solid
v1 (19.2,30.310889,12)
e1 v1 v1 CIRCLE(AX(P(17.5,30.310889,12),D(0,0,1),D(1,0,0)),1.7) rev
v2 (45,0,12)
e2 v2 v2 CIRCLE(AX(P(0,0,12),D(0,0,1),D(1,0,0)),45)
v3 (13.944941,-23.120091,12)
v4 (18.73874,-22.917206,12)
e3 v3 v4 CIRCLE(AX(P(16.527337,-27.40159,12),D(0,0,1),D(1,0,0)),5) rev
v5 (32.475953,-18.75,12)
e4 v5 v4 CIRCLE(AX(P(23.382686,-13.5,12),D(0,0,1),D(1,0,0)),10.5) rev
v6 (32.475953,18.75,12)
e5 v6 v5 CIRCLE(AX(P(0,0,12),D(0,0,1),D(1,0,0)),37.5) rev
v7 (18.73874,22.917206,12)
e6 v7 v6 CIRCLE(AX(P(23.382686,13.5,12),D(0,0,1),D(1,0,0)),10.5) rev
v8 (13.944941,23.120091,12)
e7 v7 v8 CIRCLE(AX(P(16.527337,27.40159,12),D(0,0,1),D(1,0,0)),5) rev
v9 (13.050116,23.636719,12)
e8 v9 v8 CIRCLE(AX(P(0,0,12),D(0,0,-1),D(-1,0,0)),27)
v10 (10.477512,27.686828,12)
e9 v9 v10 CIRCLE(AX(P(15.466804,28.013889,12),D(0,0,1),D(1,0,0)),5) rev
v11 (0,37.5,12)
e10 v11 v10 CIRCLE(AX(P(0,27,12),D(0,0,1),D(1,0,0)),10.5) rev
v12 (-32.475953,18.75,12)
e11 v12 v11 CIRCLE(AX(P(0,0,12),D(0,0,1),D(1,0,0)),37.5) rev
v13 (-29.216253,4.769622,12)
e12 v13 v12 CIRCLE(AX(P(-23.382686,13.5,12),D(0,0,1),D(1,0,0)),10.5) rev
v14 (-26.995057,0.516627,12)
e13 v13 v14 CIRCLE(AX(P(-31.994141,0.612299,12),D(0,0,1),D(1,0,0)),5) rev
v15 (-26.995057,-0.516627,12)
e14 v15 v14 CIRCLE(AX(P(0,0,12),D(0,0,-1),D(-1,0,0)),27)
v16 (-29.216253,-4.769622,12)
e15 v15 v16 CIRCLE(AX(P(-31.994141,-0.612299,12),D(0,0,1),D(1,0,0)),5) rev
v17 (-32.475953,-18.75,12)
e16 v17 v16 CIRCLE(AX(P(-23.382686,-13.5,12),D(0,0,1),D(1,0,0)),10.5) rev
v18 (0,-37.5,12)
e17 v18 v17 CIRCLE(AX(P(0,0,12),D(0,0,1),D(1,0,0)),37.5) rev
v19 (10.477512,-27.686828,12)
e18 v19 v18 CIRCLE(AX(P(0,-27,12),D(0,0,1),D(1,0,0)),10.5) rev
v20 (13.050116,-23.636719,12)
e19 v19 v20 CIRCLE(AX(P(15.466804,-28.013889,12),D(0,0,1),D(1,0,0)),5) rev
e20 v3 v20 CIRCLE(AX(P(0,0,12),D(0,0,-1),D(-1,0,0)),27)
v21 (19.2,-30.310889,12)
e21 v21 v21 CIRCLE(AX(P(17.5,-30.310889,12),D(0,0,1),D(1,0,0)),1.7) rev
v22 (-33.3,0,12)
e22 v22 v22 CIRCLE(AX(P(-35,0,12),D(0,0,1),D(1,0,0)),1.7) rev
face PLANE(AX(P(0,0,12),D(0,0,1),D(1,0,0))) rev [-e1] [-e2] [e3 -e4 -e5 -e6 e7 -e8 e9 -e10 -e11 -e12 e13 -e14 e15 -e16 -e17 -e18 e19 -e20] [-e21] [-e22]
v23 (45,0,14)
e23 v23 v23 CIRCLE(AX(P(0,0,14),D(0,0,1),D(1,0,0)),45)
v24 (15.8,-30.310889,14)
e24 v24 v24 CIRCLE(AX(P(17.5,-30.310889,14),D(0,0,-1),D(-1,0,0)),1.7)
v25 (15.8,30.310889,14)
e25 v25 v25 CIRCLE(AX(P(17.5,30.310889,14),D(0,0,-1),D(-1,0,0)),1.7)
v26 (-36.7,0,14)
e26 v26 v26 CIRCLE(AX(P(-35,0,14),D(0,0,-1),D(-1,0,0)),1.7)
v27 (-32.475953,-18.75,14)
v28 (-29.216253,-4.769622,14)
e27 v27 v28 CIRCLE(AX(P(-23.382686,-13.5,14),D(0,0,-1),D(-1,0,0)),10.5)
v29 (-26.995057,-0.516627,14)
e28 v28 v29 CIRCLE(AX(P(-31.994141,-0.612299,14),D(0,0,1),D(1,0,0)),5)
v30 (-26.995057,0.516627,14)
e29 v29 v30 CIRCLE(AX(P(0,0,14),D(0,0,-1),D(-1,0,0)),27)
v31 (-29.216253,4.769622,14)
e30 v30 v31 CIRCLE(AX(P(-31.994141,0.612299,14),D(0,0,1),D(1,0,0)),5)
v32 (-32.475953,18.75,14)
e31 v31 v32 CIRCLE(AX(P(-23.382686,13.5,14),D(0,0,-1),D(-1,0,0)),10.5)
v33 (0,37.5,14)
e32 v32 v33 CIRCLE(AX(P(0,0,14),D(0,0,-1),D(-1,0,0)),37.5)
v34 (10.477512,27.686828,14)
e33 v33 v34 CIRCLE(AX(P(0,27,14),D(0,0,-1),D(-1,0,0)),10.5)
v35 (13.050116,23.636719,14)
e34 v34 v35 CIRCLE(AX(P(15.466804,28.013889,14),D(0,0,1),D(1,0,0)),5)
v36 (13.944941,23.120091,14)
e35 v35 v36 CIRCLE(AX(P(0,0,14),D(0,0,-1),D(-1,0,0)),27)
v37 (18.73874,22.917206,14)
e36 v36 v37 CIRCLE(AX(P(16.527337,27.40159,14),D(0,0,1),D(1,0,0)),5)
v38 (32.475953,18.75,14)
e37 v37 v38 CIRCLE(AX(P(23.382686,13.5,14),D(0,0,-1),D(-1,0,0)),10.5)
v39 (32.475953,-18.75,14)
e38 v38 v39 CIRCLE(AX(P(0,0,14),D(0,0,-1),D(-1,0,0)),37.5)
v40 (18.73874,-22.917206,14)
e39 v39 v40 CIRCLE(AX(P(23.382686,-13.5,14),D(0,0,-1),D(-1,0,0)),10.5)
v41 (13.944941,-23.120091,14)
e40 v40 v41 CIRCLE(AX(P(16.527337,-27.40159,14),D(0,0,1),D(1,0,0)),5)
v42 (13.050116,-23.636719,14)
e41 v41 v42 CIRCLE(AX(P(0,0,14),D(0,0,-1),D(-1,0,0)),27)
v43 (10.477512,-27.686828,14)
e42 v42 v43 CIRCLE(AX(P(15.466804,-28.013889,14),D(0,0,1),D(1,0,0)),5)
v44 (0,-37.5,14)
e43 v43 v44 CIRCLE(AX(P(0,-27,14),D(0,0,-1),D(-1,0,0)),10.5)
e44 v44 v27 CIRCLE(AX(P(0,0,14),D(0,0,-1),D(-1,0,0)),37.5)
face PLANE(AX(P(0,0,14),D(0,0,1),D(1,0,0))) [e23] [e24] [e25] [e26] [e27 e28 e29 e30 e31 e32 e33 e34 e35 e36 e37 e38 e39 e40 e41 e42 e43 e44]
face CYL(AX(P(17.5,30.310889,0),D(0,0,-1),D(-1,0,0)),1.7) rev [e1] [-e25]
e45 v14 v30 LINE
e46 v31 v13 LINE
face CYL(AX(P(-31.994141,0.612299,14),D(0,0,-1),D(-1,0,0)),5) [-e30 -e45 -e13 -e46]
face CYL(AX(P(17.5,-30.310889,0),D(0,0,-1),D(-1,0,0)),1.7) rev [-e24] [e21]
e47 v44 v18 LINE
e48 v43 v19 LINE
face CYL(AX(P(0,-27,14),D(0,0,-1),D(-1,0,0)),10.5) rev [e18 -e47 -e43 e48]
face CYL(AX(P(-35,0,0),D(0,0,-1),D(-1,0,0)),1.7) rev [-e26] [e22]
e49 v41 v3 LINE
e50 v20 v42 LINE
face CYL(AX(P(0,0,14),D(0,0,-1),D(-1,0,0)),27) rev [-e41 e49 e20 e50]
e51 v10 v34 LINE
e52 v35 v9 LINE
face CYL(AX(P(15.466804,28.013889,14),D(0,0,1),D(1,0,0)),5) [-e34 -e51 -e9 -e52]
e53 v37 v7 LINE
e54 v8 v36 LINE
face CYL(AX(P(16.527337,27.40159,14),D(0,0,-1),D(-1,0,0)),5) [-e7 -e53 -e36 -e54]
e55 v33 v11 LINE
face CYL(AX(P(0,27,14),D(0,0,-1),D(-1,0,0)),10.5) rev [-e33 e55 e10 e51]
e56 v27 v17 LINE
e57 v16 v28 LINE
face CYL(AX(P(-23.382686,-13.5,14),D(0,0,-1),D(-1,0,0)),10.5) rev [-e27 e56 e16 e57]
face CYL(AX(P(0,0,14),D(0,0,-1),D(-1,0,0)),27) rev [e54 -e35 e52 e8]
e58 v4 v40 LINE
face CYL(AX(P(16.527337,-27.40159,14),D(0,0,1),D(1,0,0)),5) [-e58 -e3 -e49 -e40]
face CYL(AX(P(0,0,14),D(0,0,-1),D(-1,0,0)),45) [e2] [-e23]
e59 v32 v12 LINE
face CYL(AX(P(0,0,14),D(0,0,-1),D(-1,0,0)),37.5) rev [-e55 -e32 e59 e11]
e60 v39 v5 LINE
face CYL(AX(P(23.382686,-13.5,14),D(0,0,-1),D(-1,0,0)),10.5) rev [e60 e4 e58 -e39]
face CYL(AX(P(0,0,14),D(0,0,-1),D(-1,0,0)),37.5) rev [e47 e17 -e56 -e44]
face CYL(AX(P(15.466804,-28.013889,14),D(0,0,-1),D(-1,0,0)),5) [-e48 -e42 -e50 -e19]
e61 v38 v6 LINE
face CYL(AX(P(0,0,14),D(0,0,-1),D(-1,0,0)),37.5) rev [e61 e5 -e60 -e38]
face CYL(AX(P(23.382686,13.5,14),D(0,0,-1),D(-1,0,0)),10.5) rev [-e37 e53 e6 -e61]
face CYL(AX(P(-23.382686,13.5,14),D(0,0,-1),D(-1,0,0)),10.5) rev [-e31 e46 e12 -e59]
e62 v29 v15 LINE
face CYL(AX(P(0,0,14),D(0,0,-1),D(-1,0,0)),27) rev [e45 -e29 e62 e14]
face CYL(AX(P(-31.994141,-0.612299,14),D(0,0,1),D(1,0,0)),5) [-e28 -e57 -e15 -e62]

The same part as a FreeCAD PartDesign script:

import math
import FreeCAD as App
import Part
import Sketcher
Q = App.Units.Quantity


def edges_at(feature, points):
    """Names of the edges that pass closest to the given points."""
    edges = feature.Shape.Edges
    near = lambda p: min(range(len(edges)), key=lambda i: edges[i].distToShape(Part.Vertex(*p))[0])
    return sorted({f"Edge{near(p) + 1}" for p in points})

doc = App.newDocument("Part")
body = doc.addObject("PartDesign::Body", "Body")

sketch1 = doc.addObject("Sketcher::SketchObject", "Sketch")
body.addObject(sketch1)
sketch1.AttachmentSupport = (doc.XY_Plane, [""])
sketch1.MapMode = "FlatFace"
sketch1.addGeometry(Part.Circle(App.Vector(0, 0, 0), App.Vector(0, 0, 1), 40), False)
sketch1.addConstraint(Sketcher.Constraint("Coincident", 0, 3, -1, 1))
sketch1.addConstraint(Sketcher.Constraint("Diameter", 0, Q("80 mm")))
pad1 = doc.addObject("PartDesign::Pad", "Pad")
body.addObject(pad1)
pad1.Profile = sketch1
pad1.Length = 12

sketch2 = doc.addObject("Sketcher::SketchObject", "Sketch001")
body.addObject(sketch2)
sketch2.AttachmentSupport = (doc.XY_Plane, [""])
sketch2.MapMode = "FlatFace"
sketch2.AttachmentOffset = App.Placement(App.Vector(0, 0, 12), App.Rotation())
sketch2.addGeometry(Part.Circle(App.Vector(0, 0, 0), App.Vector(0, 0, 1), 45), False)
sketch2.addConstraint(Sketcher.Constraint("Coincident", 0, 3, -1, 1))
sketch2.addConstraint(Sketcher.Constraint("Diameter", 0, Q("90 mm")))
pad2 = doc.addObject("PartDesign::Pad", "Pad001")
body.addObject(pad2)
pad2.Profile = sketch2
pad2.Length = 2

sketch3 = doc.addObject("Sketcher::SketchObject", "Sketch002")
body.addObject(sketch3)
sketch3.AttachmentSupport = (doc.XY_Plane, [""])
sketch3.MapMode = "FlatFace"
sketch3.AttachmentOffset = App.Placement(App.Vector(0, 0, 14), App.Rotation())
sketch3.addGeometry(Part.Circle(App.Vector(0, 0, 0), App.Vector(0, 0, 1), 7.5), False)
sketch3.addConstraint(Sketcher.Constraint("Coincident", 0, 3, -1, 1))
sketch3.addConstraint(Sketcher.Constraint("Diameter", 0, Q("15 mm")))
pocket1 = doc.addObject("PartDesign::Pocket", "Pocket")
body.addObject(pocket1)
pocket1.Profile = sketch3
pocket1.Type = "ThroughAll"

sketch4 = doc.addObject("Sketcher::SketchObject", "Sketch003")
body.addObject(sketch4)
sketch4.AttachmentSupport = (doc.XY_Plane, [""])
sketch4.MapMode = "FlatFace"
sketch4.AttachmentOffset = App.Placement(App.Vector(0, 0, 14), App.Rotation())
sketch4.addGeometry(Part.Circle(App.Vector(6.25, 10.825318, 0), App.Vector(0, 0, 1), 1.7), False)
sketch4.addGeometry(Part.Circle(App.Vector(-12.5, 0, 0), App.Vector(0, 0, 1), 1.7), False)
sketch4.addGeometry(Part.Circle(App.Vector(6.25, -10.825318, 0), App.Vector(0, 0, 1), 1.7), False)
sketch4.addConstraint(Sketcher.Constraint("Equal", 0, 1))
sketch4.addConstraint(Sketcher.Constraint("Equal", 1, 2))
sketch4.addConstraint(Sketcher.Constraint("Symmetric", 0, 3, 2, 3, -1))
sketch4.addConstraint(Sketcher.Constraint("PointOnObject", 1, 3, -1))
sketch4.addConstraint(Sketcher.Constraint("Diameter", 0, Q("3.4 mm")))
sketch4.addConstraint(Sketcher.Constraint("DistanceX", 1, 3, -1, 1, Q("12.5 mm")))
sketch4.addConstraint(Sketcher.Constraint("DistanceX", -1, 1, 0, 3, Q("6.25 mm")))
sketch4.addConstraint(Sketcher.Constraint("DistanceY", -1, 1, 0, 3, Q("10.825318 mm")))
doc.recompute()
hole = doc.addObject("PartDesign::Hole", "Hole")
body.addObject(hole)
hole.Profile = sketch4
hole.ThreadType = "None"
hole.Diameter = 3.4
hole.DepthType = "ThroughAll"

sketch5 = doc.addObject("Sketcher::SketchObject", "Sketch004")
body.addObject(sketch5)
sketch5.AttachmentSupport = (doc.XY_Plane, [""])
sketch5.MapMode = "FlatFace"
sketch5.addGeometry(Part.ArcOfCircle(Part.Circle(App.Vector(-23.382686, -13.5, 0), App.Vector(0, 0, 1), 10.5), math.radians(30), math.radians(210)), False)
sketch5.addGeometry(Part.ArcOfCircle(Part.Circle(App.Vector(0, 0, 0), App.Vector(0, 0, 1), 16.5), math.radians(-150), math.radians(-90)), False)
sketch5.addGeometry(Part.ArcOfCircle(Part.Circle(App.Vector(0, -27, 0), App.Vector(0, 0, 1), 10.5), math.radians(-90), math.radians(90)), False)
sketch5.addGeometry(Part.ArcOfCircle(Part.Circle(App.Vector(0, 0, 0), App.Vector(0, 0, 1), 37.5), math.radians(-150), math.radians(-90)), False)
sketch5.addGeometry(Part.ArcOfCircle(Part.Circle(App.Vector(0, 0, 0), App.Vector(0, 0, 1), 37.5), math.radians(90), math.radians(150)), False)
sketch5.addGeometry(Part.ArcOfCircle(Part.Circle(App.Vector(0, 27, 0), App.Vector(0, 0, 1), 10.5), math.radians(-90), math.radians(90)), False)
sketch5.addGeometry(Part.ArcOfCircle(Part.Circle(App.Vector(0, 0, 0), App.Vector(0, 0, 1), 16.5), math.radians(90), math.radians(150)), False)
sketch5.addGeometry(Part.ArcOfCircle(Part.Circle(App.Vector(-23.382686, 13.5, 0), App.Vector(0, 0, 1), 10.5), math.radians(150), math.radians(330)), False)
sketch5.addGeometry(Part.ArcOfCircle(Part.Circle(App.Vector(23.382686, -13.5, 0), App.Vector(0, 0, 1), 10.5), math.radians(150), math.radians(330)), False)
sketch5.addGeometry(Part.ArcOfCircle(Part.Circle(App.Vector(0, 0, 0), App.Vector(0, 0, 1), 16.5), math.radians(-30), math.radians(30)), False)
sketch5.addGeometry(Part.ArcOfCircle(Part.Circle(App.Vector(23.382686, 13.5, 0), App.Vector(0, 0, 1), 10.5), math.radians(30), math.radians(210)), False)
sketch5.addGeometry(Part.ArcOfCircle(Part.Circle(App.Vector(0, 0, 0), App.Vector(0, 0, 1), 37.5), math.radians(-30), math.radians(30)), False)
sketch5.addConstraint(Sketcher.Constraint("Tangent", 0, 1, 1, 1))
sketch5.addConstraint(Sketcher.Constraint("Tangent", 1, 2, 2, 2))
sketch5.addConstraint(Sketcher.Constraint("Tangent", 2, 1, 3, 2))
sketch5.addConstraint(Sketcher.Constraint("Tangent", 3, 1, 0, 2))
sketch5.addConstraint(Sketcher.Constraint("Tangent", 4, 1, 5, 2))
sketch5.addConstraint(Sketcher.Constraint("Tangent", 5, 1, 6, 1))
sketch5.addConstraint(Sketcher.Constraint("Tangent", 6, 2, 7, 2))
sketch5.addConstraint(Sketcher.Constraint("Tangent", 7, 1, 4, 2))
sketch5.addConstraint(Sketcher.Constraint("Tangent", 8, 1, 9, 1))
sketch5.addConstraint(Sketcher.Constraint("Tangent", 9, 2, 10, 2))
sketch5.addConstraint(Sketcher.Constraint("Tangent", 10, 1, 11, 2))
sketch5.addConstraint(Sketcher.Constraint("Tangent", 11, 1, 8, 2))
sketch5.addConstraint(Sketcher.Constraint("Coincident", 1, 3, -1, 1))
sketch5.addConstraint(Sketcher.Constraint("Coincident", 3, 3, -1, 1))
sketch5.addConstraint(Sketcher.Constraint("Coincident", 4, 3, -1, 1))
sketch5.addConstraint(Sketcher.Constraint("Coincident", 6, 3, -1, 1))
sketch5.addConstraint(Sketcher.Constraint("Coincident", 9, 3, -1, 1))
sketch5.addConstraint(Sketcher.Constraint("Coincident", 11, 3, -1, 1))
sketch5.addConstraint(Sketcher.Constraint("Equal", 3, 4))
sketch5.addConstraint(Sketcher.Constraint("Equal", 2, 5))
sketch5.addConstraint(Sketcher.Constraint("Equal", 7, 8))
sketch5.addConstraint(Sketcher.Constraint("Equal", 6, 9))
sketch5.addConstraint(Sketcher.Constraint("PointOnObject", 2, 3, -2))
sketch5.addConstraint(Sketcher.Constraint("PointOnObject", 5, 3, -2))
sketch5.addConstraint(Sketcher.Constraint("Horizontal", 0, 3, 8, 3))
sketch5.addConstraint(Sketcher.Constraint("Horizontal", 7, 3, 10, 3))
sketch5.addConstraint(Sketcher.Constraint("Vertical", 0, 3, 7, 3))
sketch5.addConstraint(Sketcher.Constraint("Radius", 0, Q("10.5 mm")))
sketch5.addConstraint(Sketcher.Constraint("Radius", 1, Q("16.5 mm")))
sketch5.addConstraint(Sketcher.Constraint("DistanceY", 0, 3, 7, 3, Q("27 mm")))
pocket2 = doc.addObject("PartDesign::Pocket", "Pocket001")
body.addObject(pocket2)
pocket2.Profile = sketch5
pocket2.Type = "ThroughAll"
pocket2.Reversed = True

sketch6 = doc.addObject("Sketcher::SketchObject", "Sketch005")
body.addObject(sketch6)
sketch6.AttachmentSupport = (doc.XY_Plane, [""])
sketch6.MapMode = "FlatFace"
sketch6.addGeometry(Part.Circle(App.Vector(17.5, 30.310889, 0), App.Vector(0, 0, 1), 1.7), False)
sketch6.addGeometry(Part.Circle(App.Vector(-35, 0, 0), App.Vector(0, 0, 1), 1.7), False)
sketch6.addGeometry(Part.Circle(App.Vector(17.5, -30.310889, 0), App.Vector(0, 0, 1), 1.7), False)
sketch6.addConstraint(Sketcher.Constraint("Equal", 0, 1))
sketch6.addConstraint(Sketcher.Constraint("Equal", 1, 2))
sketch6.addConstraint(Sketcher.Constraint("Symmetric", 0, 3, 2, 3, -1))
sketch6.addConstraint(Sketcher.Constraint("PointOnObject", 1, 3, -1))
sketch6.addConstraint(Sketcher.Constraint("Diameter", 0, Q("3.4 mm")))
sketch6.addConstraint(Sketcher.Constraint("DistanceX", 1, 3, -1, 1, Q("35 mm")))
sketch6.addConstraint(Sketcher.Constraint("DistanceX", -1, 1, 0, 3, Q("17.5 mm")))
sketch6.addConstraint(Sketcher.Constraint("DistanceY", -1, 1, 0, 3, Q("30.310889 mm")))
doc.recompute()
hole2 = doc.addObject("PartDesign::Hole", "Hole001")
body.addObject(hole2)
hole2.Profile = sketch6
hole2.ThreadType = "None"
hole2.Diameter = 3.4
hole2.DepthType = "ThroughAll"
hole2.Reversed = True

sketch7 = doc.addObject("Sketcher::SketchObject", "Sketch006")
body.addObject(sketch7)
sketch7.AttachmentSupport = (doc.XY_Plane, [""])
sketch7.MapMode = "FlatFace"
sketch7.addGeometry(Part.Circle(App.Vector(0, 0, 0), App.Vector(0, 0, 1), 42.242904), False)
sketch7.addConstraint(Sketcher.Constraint("Coincident", 0, 3, -1, 1))
sketch7.addConstraint(Sketcher.Constraint("Diameter", 0, Q("84.485808 mm")))
pocket3 = doc.addObject("PartDesign::Pocket", "Pocket002")
body.addObject(pocket3)
pocket3.Profile = sketch7
pocket3.Length = 12
pocket3.Reversed = True

sketch8 = doc.addObject("Sketcher::SketchObject", "Sketch007")
body.addObject(sketch8)
sketch8.AttachmentSupport = (doc.XY_Plane, [""])
sketch8.MapMode = "FlatFace"
sketch8.AttachmentOffset = App.Placement(App.Vector(0, 0, 12), App.Rotation())
sketch8.addGeometry(Part.Circle(App.Vector(0, 0, 0), App.Vector(0, 0, 1), 27), False)
sketch8.addConstraint(Sketcher.Constraint("Coincident", 0, 3, -1, 1))
sketch8.addConstraint(Sketcher.Constraint("Diameter", 0, Q("54 mm")))
pocket4 = doc.addObject("PartDesign::Pocket", "Pocket003")
body.addObject(pocket4)
pocket4.Profile = sketch8
pocket4.Type = "ThroughAll"
pocket4.Reversed = True
doc.recompute()

fillet = doc.addObject("PartDesign::Fillet", "Fillet")
body.addObject(fillet)
fillet.Base = (pocket4, edges_at(pocket4, [
    (16.465, 21.399, 13),
    (10.3, 24.958, 13),
    (-26.764, 3.559, 13),
    (-26.764, -3.559, 13),
    (10.3, -24.958, 13),
    (16.465, -21.399, 13),
]))
fillet.Radius = 5

doc.recompute()
